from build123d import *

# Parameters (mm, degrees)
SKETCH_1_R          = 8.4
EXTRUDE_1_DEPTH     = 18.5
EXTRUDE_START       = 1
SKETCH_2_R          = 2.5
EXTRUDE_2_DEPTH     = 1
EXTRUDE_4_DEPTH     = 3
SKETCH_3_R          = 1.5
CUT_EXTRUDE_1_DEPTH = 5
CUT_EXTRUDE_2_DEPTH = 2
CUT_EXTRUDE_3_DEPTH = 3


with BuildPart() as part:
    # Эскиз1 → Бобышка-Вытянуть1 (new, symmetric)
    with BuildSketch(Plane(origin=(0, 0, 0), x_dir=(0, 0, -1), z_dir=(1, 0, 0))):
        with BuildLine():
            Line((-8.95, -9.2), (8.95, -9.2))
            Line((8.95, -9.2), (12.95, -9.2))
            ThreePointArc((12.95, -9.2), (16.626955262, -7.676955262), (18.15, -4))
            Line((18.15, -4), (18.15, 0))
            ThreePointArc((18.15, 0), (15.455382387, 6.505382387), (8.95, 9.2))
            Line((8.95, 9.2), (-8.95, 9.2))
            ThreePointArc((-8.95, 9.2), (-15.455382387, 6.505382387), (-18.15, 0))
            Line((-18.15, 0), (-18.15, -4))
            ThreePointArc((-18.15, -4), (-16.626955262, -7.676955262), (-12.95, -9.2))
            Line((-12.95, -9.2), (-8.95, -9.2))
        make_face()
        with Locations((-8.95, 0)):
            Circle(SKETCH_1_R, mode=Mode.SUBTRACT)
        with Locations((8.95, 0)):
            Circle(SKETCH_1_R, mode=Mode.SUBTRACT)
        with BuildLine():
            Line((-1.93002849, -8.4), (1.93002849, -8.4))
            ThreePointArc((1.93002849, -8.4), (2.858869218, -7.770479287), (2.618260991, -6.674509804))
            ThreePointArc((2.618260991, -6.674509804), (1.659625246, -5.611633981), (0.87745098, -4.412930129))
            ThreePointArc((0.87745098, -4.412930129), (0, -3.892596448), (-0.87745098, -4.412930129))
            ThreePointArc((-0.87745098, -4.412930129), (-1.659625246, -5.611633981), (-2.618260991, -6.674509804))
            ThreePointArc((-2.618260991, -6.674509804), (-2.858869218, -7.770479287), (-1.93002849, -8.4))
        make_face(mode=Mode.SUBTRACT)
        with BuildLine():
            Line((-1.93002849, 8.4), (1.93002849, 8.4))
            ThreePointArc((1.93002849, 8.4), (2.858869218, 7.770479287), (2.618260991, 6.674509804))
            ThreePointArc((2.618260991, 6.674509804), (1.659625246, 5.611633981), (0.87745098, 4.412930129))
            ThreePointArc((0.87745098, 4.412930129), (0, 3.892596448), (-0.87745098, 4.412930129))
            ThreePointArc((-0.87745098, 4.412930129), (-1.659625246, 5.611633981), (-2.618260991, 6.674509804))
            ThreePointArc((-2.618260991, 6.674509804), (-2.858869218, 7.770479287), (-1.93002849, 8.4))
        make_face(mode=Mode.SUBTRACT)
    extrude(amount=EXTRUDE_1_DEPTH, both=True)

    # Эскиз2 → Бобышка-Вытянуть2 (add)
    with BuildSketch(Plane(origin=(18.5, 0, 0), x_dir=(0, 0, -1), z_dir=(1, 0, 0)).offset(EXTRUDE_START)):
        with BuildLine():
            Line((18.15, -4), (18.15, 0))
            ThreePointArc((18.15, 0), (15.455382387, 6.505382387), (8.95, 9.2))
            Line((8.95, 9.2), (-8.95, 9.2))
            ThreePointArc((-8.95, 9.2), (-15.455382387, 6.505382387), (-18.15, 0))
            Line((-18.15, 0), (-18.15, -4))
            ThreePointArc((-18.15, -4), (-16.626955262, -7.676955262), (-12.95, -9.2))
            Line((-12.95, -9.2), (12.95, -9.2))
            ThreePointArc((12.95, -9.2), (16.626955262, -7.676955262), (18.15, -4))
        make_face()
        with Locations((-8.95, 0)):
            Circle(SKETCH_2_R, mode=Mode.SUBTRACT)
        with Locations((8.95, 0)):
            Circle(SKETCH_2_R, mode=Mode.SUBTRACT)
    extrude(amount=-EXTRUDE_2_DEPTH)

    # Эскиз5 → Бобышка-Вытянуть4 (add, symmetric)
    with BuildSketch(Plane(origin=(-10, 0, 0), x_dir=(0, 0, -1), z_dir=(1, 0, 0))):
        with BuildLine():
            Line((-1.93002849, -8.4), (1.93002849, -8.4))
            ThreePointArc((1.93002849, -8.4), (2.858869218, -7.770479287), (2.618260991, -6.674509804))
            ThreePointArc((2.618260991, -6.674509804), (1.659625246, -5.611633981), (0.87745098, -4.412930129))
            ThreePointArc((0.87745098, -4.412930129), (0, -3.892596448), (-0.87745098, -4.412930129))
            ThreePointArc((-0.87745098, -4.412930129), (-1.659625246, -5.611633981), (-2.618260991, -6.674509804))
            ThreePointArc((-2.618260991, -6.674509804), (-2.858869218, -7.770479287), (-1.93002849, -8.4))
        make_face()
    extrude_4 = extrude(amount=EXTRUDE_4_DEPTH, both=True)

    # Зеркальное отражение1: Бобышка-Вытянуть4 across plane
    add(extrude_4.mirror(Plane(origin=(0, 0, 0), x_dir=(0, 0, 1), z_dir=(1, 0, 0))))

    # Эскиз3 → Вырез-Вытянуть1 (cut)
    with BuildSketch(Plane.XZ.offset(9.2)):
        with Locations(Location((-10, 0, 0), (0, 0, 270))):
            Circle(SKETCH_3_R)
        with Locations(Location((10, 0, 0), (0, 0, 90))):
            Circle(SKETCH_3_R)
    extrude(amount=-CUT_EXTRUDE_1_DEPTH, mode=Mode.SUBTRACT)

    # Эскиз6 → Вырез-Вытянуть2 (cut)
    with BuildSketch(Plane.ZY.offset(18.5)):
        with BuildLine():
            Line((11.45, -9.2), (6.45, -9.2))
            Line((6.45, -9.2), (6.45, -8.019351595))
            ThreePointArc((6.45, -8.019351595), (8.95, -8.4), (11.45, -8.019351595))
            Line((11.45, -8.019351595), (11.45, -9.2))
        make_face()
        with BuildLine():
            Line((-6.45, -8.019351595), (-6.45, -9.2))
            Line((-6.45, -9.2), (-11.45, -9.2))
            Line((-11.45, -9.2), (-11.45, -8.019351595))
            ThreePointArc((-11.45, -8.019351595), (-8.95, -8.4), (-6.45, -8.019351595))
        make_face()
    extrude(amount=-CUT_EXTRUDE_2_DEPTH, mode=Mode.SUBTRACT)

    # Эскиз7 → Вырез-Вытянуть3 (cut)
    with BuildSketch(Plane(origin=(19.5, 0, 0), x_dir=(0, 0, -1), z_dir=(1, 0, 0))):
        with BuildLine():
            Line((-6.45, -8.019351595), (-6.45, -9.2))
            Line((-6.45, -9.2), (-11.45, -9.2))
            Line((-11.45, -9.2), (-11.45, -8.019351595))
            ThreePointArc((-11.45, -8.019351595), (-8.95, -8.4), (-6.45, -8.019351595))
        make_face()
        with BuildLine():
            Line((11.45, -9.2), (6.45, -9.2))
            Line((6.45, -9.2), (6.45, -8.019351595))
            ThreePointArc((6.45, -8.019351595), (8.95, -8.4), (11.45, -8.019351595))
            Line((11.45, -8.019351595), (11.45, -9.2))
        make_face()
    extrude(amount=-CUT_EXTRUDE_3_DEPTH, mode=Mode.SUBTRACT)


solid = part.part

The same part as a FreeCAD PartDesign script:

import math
import FreeCAD as App
import Part
import Sketcher

V = App.Vector

doc = App.newDocument("Part")
body = doc.addObject("PartDesign::Body", "Body")

sketch1 = body.newObject("Sketcher::SketchObject", "Sketch")
sketch1.AttachmentSupport = (doc.getObject("YZ_Plane"), [""])
sketch1.MapMode = "FlatFace"
sketch1.addGeometry([
    Part.ArcOfCircle(Part.Circle(V(-4, -12.95, 0), V(0, 0, 1), 5.2), math.radians(-180), math.radians(-90)),
    Part.LineSegment(V(-4, -18.15, 0), V(0, -18.15, 0)),
    Part.ArcOfCircle(Part.Circle(V(0, -8.95, 0), V(0, 0, 1), 9.2), math.radians(-90), math.radians(0)),
    Part.LineSegment(V(9.2, -8.95, 0), V(9.2, 8.95, 0)),
    Part.ArcOfCircle(Part.Circle(V(0, 8.95, 0), V(0, 0, 1), 9.2), math.radians(0), math.radians(90)),
    Part.LineSegment(V(0, 18.15, 0), V(-4, 18.15, 0)),
    Part.ArcOfCircle(Part.Circle(V(-4, 12.95, 0), V(0, 0, 1), 5.2), math.radians(90), math.radians(180)),
    Part.LineSegment(V(-9.2, 12.95, 0), V(-9.2, -12.95, 0)),
    Part.LineSegment(V(-8.4, -1.930028, 0), V(-8.4, 1.930028, 0)),
    Part.ArcOfCircle(Part.Circle(V(-7.4, 1.930028, 0), V(0, 0, 1), 1), math.radians(43.490358), math.radians(180)),
    Part.ArcOfCircle(Part.Circle(V(0, 8.95, 0), V(0, 0, 1), 9.2), math.radians(-136.509642), math.radians(-118.663611)),
    Part.ArcOfCircle(Part.Circle(V(-4.892596, 0, 0), V(0, 0, 1), 1), math.radians(-61.336389), math.radians(61.336389)),
    Part.ArcOfCircle(Part.Circle(V(0, -8.95, 0), V(0, 0, 1), 9.2), math.radians(118.663611), math.radians(136.509642)),
    Part.ArcOfCircle(Part.Circle(V(-7.4, -1.930028, 0), V(0, 0, 1), 1), math.radians(180), math.radians(316.509642)),
    Part.Circle(V(0, 8.95, 0), V(0, 0, 1), 8.4),
    Part.Circle(V(0, -8.95, 0), V(0, 0, 1), 8.4),
    Part.ArcOfCircle(Part.Circle(V(7.4, 1.930028, 0), V(0, 0, 1), 1), math.radians(0), math.radians(136.509642)),
    Part.LineSegment(V(8.4, 1.930028, 0), V(8.4, -1.930028, 0)),
    Part.ArcOfCircle(Part.Circle(V(7.4, -1.930028, 0), V(0, 0, 1), 1), math.radians(-136.509642), math.radians(0)),
    Part.ArcOfCircle(Part.Circle(V(0, -8.95, 0), V(0, 0, 1), 9.2), math.radians(43.490358), math.radians(61.336389)),
    Part.ArcOfCircle(Part.Circle(V(4.892596, 0, 0), V(0, 0, 1), 1), math.radians(118.663611), math.radians(241.336389)),
    Part.ArcOfCircle(Part.Circle(V(0, 8.95, 0), V(0, 0, 1), 9.2), math.radians(-61.336389), math.radians(-43.490358)),
], False)
sketch1.addConstraint([
    Sketcher.Constraint("Tangent", 0, 2, 1, 1),
    Sketcher.Constraint("Tangent", 1, 2, 2, 1),
    Sketcher.Constraint("Tangent", 2, 2, 3, 1),
    Sketcher.Constraint("Tangent", 3, 2, 4, 1),
    Sketcher.Constraint("Tangent", 4, 2, 5, 1),
    Sketcher.Constraint("Tangent", 5, 2, 6, 1),
    Sketcher.Constraint("Tangent", 6, 2, 7, 1),
    Sketcher.Constraint("Tangent", 7, 2, 0, 1),
    Sketcher.Constraint("Tangent", 8, 2, 9, 2),
    Sketcher.Constraint("Tangent", 9, 1, 10, 1),
    Sketcher.Constraint("Tangent", 10, 2, 11, 2),
    Sketcher.Constraint("Tangent", 11, 1, 12, 1),
    Sketcher.Constraint("Tangent", 12, 2, 13, 2),
    Sketcher.Constraint("Tangent", 13, 1, 8, 1),
    Sketcher.Constraint("Tangent", 16, 1, 17, 1),
    Sketcher.Constraint("Tangent", 17, 2, 18, 2),
    Sketcher.Constraint("Tangent", 18, 1, 19, 1),
    Sketcher.Constraint("Tangent", 19, 2, 20, 2),
    Sketcher.Constraint("Tangent", 20, 1, 21, 1),
    Sketcher.Constraint("Tangent", 21, 2, 16, 2),
    Sketcher.Constraint("Horizontal", 1),
    Sketcher.Constraint("Vertical", 3),
    Sketcher.Constraint("Horizontal", 5),
    Sketcher.Constraint("Vertical", 7),
    Sketcher.Constraint("Vertical", 8),
    Sketcher.Constraint("Vertical", 17),
    Sketcher.Constraint("Coincident", 10, 3, 4, 3),
    Sketcher.Constraint("Coincident", 12, 3, 2, 3),
    Sketcher.Constraint("Coincident", 14, 3, 4, 3),
    Sketcher.Constraint("Coincident", 15, 3, 2, 3),
    Sketcher.Constraint("Coincident", 19, 3, 2, 3),
    Sketcher.Constraint("Coincident", 21, 3, 4, 3),
    Sketcher.Constraint("Equal", 2, 4),
    Sketcher.Constraint("Equal", 0, 6),
    Sketcher.Constraint("Equal", 4, 10),
    Sketcher.Constraint("Equal", 9, 11),
    Sketcher.Constraint("Equal", 10, 12),
    Sketcher.Constraint("Equal", 11, 13),
    Sketcher.Constraint("Equal", 14, 15),
    Sketcher.Constraint("Equal", 13, 16),
    Sketcher.Constraint("Equal", 16, 18),
    Sketcher.Constraint("Equal", 12, 19),
    Sketcher.Constraint("Equal", 18, 20),
    Sketcher.Constraint("Equal", 19, 21),
    Sketcher.Constraint("Symmetric", 2, 3, 4, 3, -1, 1),
    Sketcher.Constraint("Horizontal", 9, 3, 16, 3),
    Sketcher.Constraint("Radius", 9, 1.0),
    Sketcher.Constraint("Diameter", 14, 16.8),
    Sketcher.Constraint("Radius", 0, 5.2),
    Sketcher.Constraint("Radius", 2, 9.2),
    Sketcher.Constraint("DistanceX", 1, 1, 1, 2, 4.0),
    Sketcher.Constraint("DistanceY", 3, 1, 3, 2, 17.9),
    Sketcher.Constraint("DistanceX", 9, 3, -1, 1, 7.4),
])
pad1 = body.newObject("PartDesign::Pad", "Pad")
pad1.Profile = sketch1
pad1.Length = 37
pad1.Midplane = True

sketch2 = body.newObject("Sketcher::SketchObject", "Sketch001")
sketch2.AttachmentSupport = (doc.getObject("YZ_Plane"), [""])
sketch2.MapMode = "FlatFace"
sketch2.AttachmentOffset = App.Placement(V(0, 0, 19.5), App.Rotation())
sketch2.addGeometry([
    Part.LineSegment(V(-4, -18.15, 0), V(0, -18.15, 0)),
    Part.ArcOfCircle(Part.Circle(V(0, -8.95, 0), V(0, 0, 1), 9.2), math.radians(-90), math.radians(0)),
    Part.LineSegment(V(9.2, -8.95, 0), V(9.2, 8.95, 0)),
    Part.ArcOfCircle(Part.Circle(V(0, 8.95, 0), V(0, 0, 1), 9.2), math.radians(0), math.radians(90)),
    Part.LineSegment(V(0, 18.15, 0), V(-4, 18.15, 0)),
    Part.ArcOfCircle(Part.Circle(V(-4, 12.95, 0), V(0, 0, 1), 5.2), math.radians(90), math.radians(180)),
    Part.LineSegment(V(-9.2, 12.95, 0), V(-9.2, -12.95, 0)),
    Part.ArcOfCircle(Part.Circle(V(-4, -12.95, 0), V(0, 0, 1), 5.2), math.radians(-180), math.radians(-90)),
    Part.Circle(V(0, 8.95, 0), V(0, 0, 1), 2.5),
    Part.Circle(V(0, -8.95, 0), V(0, 0, 1), 2.5),
], False)
sketch2.addConstraint([
    Sketcher.Constraint("Tangent", 0, 2, 1, 1),
    Sketcher.Constraint("Tangent", 1, 2, 2, 1),
    Sketcher.Constraint("Tangent", 2, 2, 3, 1),
    Sketcher.Constraint("Tangent", 3, 2, 4, 1),
    Sketcher.Constraint("Tangent", 4, 2, 5, 1),
    Sketcher.Constraint("Tangent", 5, 2, 6, 1),
    Sketcher.Constraint("Tangent", 6, 2, 7, 1),
    Sketcher.Constraint("Tangent", 7, 2, 0, 1),
    Sketcher.Constraint("Horizontal", 0),
    Sketcher.Constraint("Vertical", 2),
    Sketcher.Constraint("Horizontal", 4),
    Sketcher.Constraint("Vertical", 6),
    Sketcher.Constraint("Coincident", 8, 3, 3, 3),
    Sketcher.Constraint("Coincident", 9, 3, 1, 3),
    Sketcher.Constraint("Equal", 1, 3),
    Sketcher.Constraint("Equal", 5, 7),
    Sketcher.Constraint("Equal", 8, 9),
    Sketcher.Constraint("Symmetric", 1, 3, 3, 3, -1, 1),
    Sketcher.Constraint("Diameter", 8, 5.0),
    Sketcher.Constraint("Radius", 1, 9.2),
    Sketcher.Constraint("Radius", 5, 5.2),
    Sketcher.Constraint("DistanceX", 0, 1, 0, 2, 4.0),
    Sketcher.Constraint("DistanceY", 2, 1, 2, 2, 17.9),
])
pad2 = body.newObject("PartDesign::Pad", "Pad001")
pad2.Profile = sketch2
pad2.Length = 1
pad2.Reversed = True

sketch3 = body.newObject("Sketcher::SketchObject", "Sketch002")
sketch3.AttachmentSupport = (doc.getObject("YZ_Plane"), [""])
sketch3.MapMode = "FlatFace"
sketch3.AttachmentOffset = App.Placement(V(0, 0, -10), App.Rotation())
sketch3.addGeometry([
    Part.LineSegment(V(-8.4, 1.930028, 0), V(-8.4, -1.930028, 0)),
    Part.ArcOfCircle(Part.Circle(V(-7.4, -1.930028, 0), V(0, 0, 1), 1), math.radians(180), math.radians(316.509642)),
    Part.ArcOfCircle(Part.Circle(V(0, -8.95, 0), V(0, 0, 1), 9.2), math.radians(118.663611), math.radians(136.509642)),
    Part.ArcOfCircle(Part.Circle(V(-4.892596, 0, 0), V(0, 0, 1), 1), math.radians(-61.336389), math.radians(61.336389)),
    Part.ArcOfCircle(Part.Circle(V(0, 8.95, 0), V(0, 0, 1), 9.2), math.radians(-136.509642), math.radians(-118.663611)),
    Part.ArcOfCircle(Part.Circle(V(-7.4, 1.930028, 0), V(0, 0, 1), 1), math.radians(43.490358), math.radians(180)),
], False)
sketch3.addConstraint([
    Sketcher.Constraint("Tangent", 0, 2, 1, 1),
    Sketcher.Constraint("Tangent", 1, 2, 2, 2),
    Sketcher.Constraint("Tangent", 2, 1, 3, 1),
    Sketcher.Constraint("Tangent", 3, 2, 4, 2),
    Sketcher.Constraint("Tangent", 4, 1, 5, 1),
    Sketcher.Constraint("Tangent", 5, 2, 0, 1),
    Sketcher.Constraint("Vertical", 0),
    Sketcher.Constraint("Equal", 1, 3),
    Sketcher.Constraint("Equal", 2, 4),
    Sketcher.Constraint("Equal", 3, 5),
    Sketcher.Constraint("Symmetric", 2, 3, 4, 3, -1, 1),
    Sketcher.Constraint("PointOnObject", 2, 3, -2),
    Sketcher.Constraint("Radius", 1, 1.0),
    Sketcher.Constraint("Radius", 2, 9.2),
    Sketcher.Constraint("DistanceX", 1, 3, -1, 1, 7.4),
    Sketcher.Constraint("DistanceY", 2, 3, 4, 3, 17.9),
])
pad3 = body.newObject("PartDesign::Pad", "Pad002")
pad3.Profile = sketch3
pad3.Length = 6
pad3.Midplane = True
doc.recompute()

mirrored = body.newObject("PartDesign::Mirrored", "Mirrored")
mirrored.Originals = [pad3]
mirrored.MirrorPlane = (doc.getObject("YZ_Plane"), [""])
body.Tip = mirrored

sketch4 = body.newObject("Sketcher::SketchObject", "Sketch003")
sketch4.AttachmentSupport = (doc.getObject("XZ_Plane"), [""])
sketch4.MapMode = "FlatFace"
sketch4.AttachmentOffset = App.Placement(V(0, 0, 9.2), App.Rotation())
sketch4.addGeometry([
    Part.Circle(V(-10, 0, 0), V(0, 0, 1), 1.5),
    Part.Circle(V(10, 0, 0), V(0, 0, 1), 1.5),
], False)
sketch4.addConstraint([
    Sketcher.Constraint("Equal", 0, 1),
    Sketcher.Constraint("Symmetric", 0, 3, 1, 3, -1, 1),
    Sketcher.Constraint("PointOnObject", 0, 3, -1),
    Sketcher.Constraint("Diameter", 0, 3.0),
    Sketcher.Constraint("DistanceX", 0, 3, -1, 1, 10.0),
])
pocket1 = body.newObject("PartDesign::Pocket", "Pocket")
pocket1.Profile = sketch4
pocket1.Length = 5

sketch5 = body.newObject("Sketcher::SketchObject", "Sketch004")
sketch5.AttachmentSupport = (doc.getObject("YZ_Plane"), [""])
sketch5.MapMode = "FlatFace"
sketch5.AttachmentOffset = App.Placement(V(0, 0, -18.5), App.Rotation())
sketch5.addGeometry([
    Part.LineSegment(V(-9.2, 6.45, 0), V(-9.2, 11.45, 0)),
    Part.LineSegment(V(-9.2, 11.45, 0), V(-8.019352, 11.45, 0)),
    Part.ArcOfCircle(Part.Circle(V(0, 8.95, 0), V(0, 0, 1), 8.4), math.radians(162.685346), math.radians(197.314654)),
    Part.LineSegment(V(-8.019352, 6.45, 0), V(-9.2, 6.45, 0)),
    Part.LineSegment(V(-9.2, -6.45, 0), V(-8.019352, -6.45, 0)),
    Part.ArcOfCircle(Part.Circle(V(0, -8.95, 0), V(0, 0, 1), 8.4), math.radians(162.685346), math.radians(197.314654)),
    Part.LineSegment(V(-8.019352, -11.45, 0), V(-9.2, -11.45, 0)),
    Part.LineSegment(V(-9.2, -11.45, 0), V(-9.2, -6.45, 0)),
], False)
sketch5.addConstraint([
    Sketcher.Constraint("Coincident", 0, 2, 1, 1),
    Sketcher.Constraint("Coincident", 1, 2, 2, 1),
    Sketcher.Constraint("Coincident", 2, 2, 3, 1),
    Sketcher.Constraint("Coincident", 3, 2, 0, 1),
    Sketcher.Constraint("Coincident", 4, 2, 5, 1),
    Sketcher.Constraint("Coincident", 5, 2, 6, 1),
    Sketcher.Constraint("Coincident", 6, 2, 7, 1),
    Sketcher.Constraint("Coincident", 7, 2, 4, 1),
    Sketcher.Constraint("Vertical", 0),
    Sketcher.Constraint("Horizontal", 1),
    Sketcher.Constraint("Horizontal", 3),
    Sketcher.Constraint("Horizontal", 4),
    Sketcher.Constraint("Horizontal", 6),
    Sketcher.Constraint("Vertical", 7),
    Sketcher.Constraint("Equal", 2, 5),
    Sketcher.Constraint("Symmetric", 2, 3, 5, 3, -1, 1),
    Sketcher.Constraint("Symmetric", 2, 2, 4, 2, -1),
    Sketcher.Constraint("Symmetric", 0, 2, 6, 2, -1),
    Sketcher.Constraint("Vertical", 1, 2, 2, 2),
    Sketcher.Constraint("Radius", 2, 8.4),
    Sketcher.Constraint("DistanceY", 0, 1, 0, 2, 5.0),
    Sketcher.Constraint("DistanceX", 0, 2, -1, 1, 9.2),
    Sketcher.Constraint("DistanceY", 5, 3, 2, 3, 17.9),
])
pocket2 = body.newObject("PartDesign::Pocket", "Pocket001")
pocket2.Profile = sketch5
pocket2.Length = 2
pocket2.Reversed = True

sketch6 = body.newObject("Sketcher::SketchObject", "Sketch005")
sketch6.AttachmentSupport = (doc.getObject("YZ_Plane"), [""])
sketch6.MapMode = "FlatFace"
sketch6.AttachmentOffset = App.Placement(V(0, 0, 19.5), App.Rotation())
sketch6.addGeometry([
    Part.LineSegment(V(-9.2, 6.45, 0), V(-8.019352, 6.45, 0)),
    Part.ArcOfCircle(Part.Circle(V(0, 8.95, 0), V(0, 0, 1), 8.4), math.radians(162.685346), math.radians(197.314654)),
    Part.LineSegment(V(-8.019352, 11.45, 0), V(-9.2, 11.45, 0)),
    Part.LineSegment(V(-9.2, 11.45, 0), V(-9.2, 6.45, 0)),
    Part.LineSegment(V(-9.2, -6.45, 0), V(-9.2, -11.45, 0)),
    Part.LineSegment(V(-9.2, -11.45, 0), V(-8.019352, -11.45, 0)),
    Part.ArcOfCircle(Part.Circle(V(0, -8.95, 0), V(0, 0, 1), 8.4), math.radians(162.685346), math.radians(197.314654)),
    Part.LineSegment(V(-8.019352, -6.45, 0), V(-9.2, -6.45, 0)),
], False)
sketch6.addConstraint([
    Sketcher.Constraint("Coincident", 0, 2, 1, 2),
    Sketcher.Constraint("Coincident", 1, 1, 2, 1),
    Sketcher.Constraint("Coincident", 2, 2, 3, 1),
    Sketcher.Constraint("Coincident", 3, 2, 0, 1),
    Sketcher.Constraint("Coincident", 4, 2, 5, 1),
    Sketcher.Constraint("Coincident", 5, 2, 6, 2),
    Sketcher.Constraint("Coincident", 6, 1, 7, 1),
    Sketcher.Constraint("Coincident", 7, 2, 4, 1),
    Sketcher.Constraint("Horizontal", 0),
    Sketcher.Constraint("Horizontal", 2),
    Sketcher.Constraint("Vertical", 3),
    Sketcher.Constraint("Vertical", 4),
    Sketcher.Constraint("Horizontal", 5),
    Sketcher.Constraint("Horizontal", 7),
    Sketcher.Constraint("Equal", 1, 6),
    Sketcher.Constraint("Symmetric", 1, 3, 6, 3, -1, 1),
    Sketcher.Constraint("Symmetric", 2, 2, 4, 2, -1),
    Sketcher.Constraint("Symmetric", 0, 2, 6, 1, -1),
    Sketcher.Constraint("Vertical", 0, 2, 1, 1),
    Sketcher.Constraint("Radius", 1, 8.4),
    Sketcher.Constraint("DistanceY", 3, 2, 3, 1, 5.0),
    Sketcher.Constraint("DistanceX", 2, 2, -1, 1, 9.2),
    Sketcher.Constraint("DistanceY", 6, 3, 1, 3, 17.9),
])
pocket3 = body.newObject("PartDesign::Pocket", "Pocket002")
pocket3.Profile = sketch6
pocket3.Length = 3

doc.recompute()
